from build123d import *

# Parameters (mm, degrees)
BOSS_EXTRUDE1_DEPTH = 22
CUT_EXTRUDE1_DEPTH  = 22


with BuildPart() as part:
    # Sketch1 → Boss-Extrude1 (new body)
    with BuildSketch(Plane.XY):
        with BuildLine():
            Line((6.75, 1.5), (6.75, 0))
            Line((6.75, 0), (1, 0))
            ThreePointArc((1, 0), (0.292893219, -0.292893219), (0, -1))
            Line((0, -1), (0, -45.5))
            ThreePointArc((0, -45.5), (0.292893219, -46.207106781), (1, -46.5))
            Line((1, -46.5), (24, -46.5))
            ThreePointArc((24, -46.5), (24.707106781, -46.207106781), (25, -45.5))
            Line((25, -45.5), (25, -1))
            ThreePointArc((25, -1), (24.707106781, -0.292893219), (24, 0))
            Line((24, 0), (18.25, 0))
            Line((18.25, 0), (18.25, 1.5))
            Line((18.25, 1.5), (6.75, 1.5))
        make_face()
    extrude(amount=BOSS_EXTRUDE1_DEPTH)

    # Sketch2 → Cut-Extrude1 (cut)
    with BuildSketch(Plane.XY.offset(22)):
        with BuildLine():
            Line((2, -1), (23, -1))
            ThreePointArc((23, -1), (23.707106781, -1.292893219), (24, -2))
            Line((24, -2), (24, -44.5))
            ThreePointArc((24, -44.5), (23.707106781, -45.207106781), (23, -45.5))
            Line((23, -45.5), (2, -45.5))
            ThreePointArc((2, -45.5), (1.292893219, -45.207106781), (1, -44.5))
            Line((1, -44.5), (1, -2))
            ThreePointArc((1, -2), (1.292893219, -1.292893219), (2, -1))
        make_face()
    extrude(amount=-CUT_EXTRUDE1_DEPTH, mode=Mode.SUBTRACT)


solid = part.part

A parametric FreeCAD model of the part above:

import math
import FreeCAD as App
import Part
import Sketcher
from FreeCAD import Vector

doc = App.newDocument("Part")
body = doc.addObject("PartDesign::Body", "Body")

sketch1 = body.newObject("Sketcher::SketchObject", "Sketch")
sketch1.AttachmentSupport = (doc.getObject("XY_Plane"), [""])
sketch1.MapMode = "FlatFace"
sketch1.addGeometry([
    Part.LineSegment(Vector(6.8, 1.5, 0), Vector(6.8, 0, 0)),
    Part.LineSegment(Vector(6.8, 0, 0), Vector(1, 0, 0)),
    Part.ArcOfCircle(Part.Circle(Vector(1, -1, 0), Vector(0, 0, 1), 1), math.radians(90), math.radians(180)),
    Part.LineSegment(Vector(0, -1, 0), Vector(0, -45.5, 0)),
    Part.ArcOfCircle(Part.Circle(Vector(1, -45.5, 0), Vector(0, 0, 1), 1), math.radians(-180), math.radians(-90)),
    Part.LineSegment(Vector(1, -46.5, 0), Vector(24, -46.5, 0)),
    Part.ArcOfCircle(Part.Circle(Vector(24, -45.5, 0), Vector(0, 0, 1), 1), math.radians(-90), math.radians(0)),
    Part.LineSegment(Vector(25, -45.5, 0), Vector(25, -1, 0)),
    Part.ArcOfCircle(Part.Circle(Vector(24, -1, 0), Vector(0, 0, 1), 1), math.radians(0), math.radians(90)),
    Part.LineSegment(Vector(24, 0, 0), Vector(18.2, 0, 0)),
    Part.LineSegment(Vector(18.2, 0, 0), Vector(18.2, 1.5, 0)),
    Part.LineSegment(Vector(18.2, 1.5, 0), Vector(6.8, 1.5, 0)),
], False)
sketch1.addConstraint([
    Sketcher.Constraint("Coincident", 0, 2, 1, 1),
    Sketcher.Constraint("Tangent", 1, 2, 2, 1),
    Sketcher.Constraint("Tangent", 2, 2, 3, 1),
    Sketcher.Constraint("Tangent", 3, 2, 4, 1),
    Sketcher.Constraint("Tangent", 4, 2, 5, 1),
    Sketcher.Constraint("Tangent", 5, 2, 6, 1),
    Sketcher.Constraint("Tangent", 6, 2, 7, 1),
    Sketcher.Constraint("Tangent", 7, 2, 8, 1),
    Sketcher.Constraint("Tangent", 8, 2, 9, 1),
    Sketcher.Constraint("Coincident", 9, 2, 10, 1),
    Sketcher.Constraint("Coincident", 10, 2, 11, 1),
    Sketcher.Constraint("Coincident", 11, 2, 0, 1),
    Sketcher.Constraint("Vertical", 0),
    Sketcher.Constraint("Horizontal", 1),
    Sketcher.Constraint("Vertical", 3),
    Sketcher.Constraint("Horizontal", 5),
    Sketcher.Constraint("Vertical", 7),
    Sketcher.Constraint("Horizontal", 9),
    Sketcher.Constraint("Vertical", 10),
    Sketcher.Constraint("Horizontal", 11),
    Sketcher.Constraint("Equal", 2, 4),
    Sketcher.Constraint("Equal", 4, 6),
    Sketcher.Constraint("Equal", 6, 8),
    Sketcher.Constraint("PointOnObject", 0, 2, -1),
    Sketcher.Constraint("PointOnObject", 2, 2, -2),
    Sketcher.Constraint("PointOnObject", 8, 2, -1),
    Sketcher.Constraint("Equal", 1, 9),
    Sketcher.Constraint("Radius", 2, 1.0),
    Sketcher.Constraint("DistanceX", 5, 1, 5, 2, 23.0),
    Sketcher.Constraint("DistanceX", 11, 2, 11, 1, 11.5),
    Sketcher.Constraint("DistanceY", 0, 2, 0, 1, 1.5),
    Sketcher.Constraint("DistanceY", 3, 2, 3, 1, 44.5),
])
pad1 = body.newObject("PartDesign::Pad", "Pad")
pad1.Profile = sketch1
pad1.Length = 22

sketch2 = body.newObject("Sketcher::SketchObject", "Sketch001")
sketch2.AttachmentSupport = (doc.getObject("XY_Plane"), [""])
sketch2.MapMode = "FlatFace"
sketch2.AttachmentOffset = App.Placement(Vector(0, 0, 22), App.Rotation())
sketch2.addGeometry([
    Part.LineSegment(Vector(23, -1, 0), Vector(2, -1, 0)),
    Part.ArcOfCircle(Part.Circle(Vector(2, -2, 0), Vector(0, 0, 1), 1), math.radians(90), math.radians(180)),
    Part.LineSegment(Vector(1, -2, 0), Vector(1, -44.5, 0)),
    Part.ArcOfCircle(Part.Circle(Vector(2, -44.5, 0), Vector(0, 0, 1), 1), math.radians(-180), math.radians(-90)),
    Part.LineSegment(Vector(2, -45.5, 0), Vector(23, -45.5, 0)),
    Part.ArcOfCircle(Part.Circle(Vector(23, -44.5, 0), Vector(0, 0, 1), 1), math.radians(-90), math.radians(0)),
    Part.LineSegment(Vector(24, -44.5, 0), Vector(24, -2, 0)),
    Part.ArcOfCircle(Part.Circle(Vector(23, -2, 0), Vector(0, 0, 1), 1), math.radians(0), math.radians(90)),
], False)
sketch2.addConstraint([
    Sketcher.Constraint("Tangent", 0, 2, 1, 1),
    Sketcher.Constraint("Tangent", 1, 2, 2, 1),
    Sketcher.Constraint("Tangent", 2, 2, 3, 1),
    Sketcher.Constraint("Tangent", 3, 2, 4, 1),
    Sketcher.Constraint("Tangent", 4, 2, 5, 1),
    Sketcher.Constraint("Tangent", 5, 2, 6, 1),
    Sketcher.Constraint("Tangent", 6, 2, 7, 1),
    Sketcher.Constraint("Tangent", 7, 2, 0, 1),
    Sketcher.Constraint("Horizontal", 0),
    Sketcher.Constraint("Vertical", 2),
    Sketcher.Constraint("Horizontal", 4),
    Sketcher.Constraint("Vertical", 6),
    Sketcher.Constraint("Equal", 1, 3),
    Sketcher.Constraint("Equal", 3, 5),
    Sketcher.Constraint("Equal", 5, 7),
    Sketcher.Constraint("Radius", 1, 1.0),
    Sketcher.Constraint("DistanceX", 0, 2, 0, 1, 21.0),
    Sketcher.Constraint("DistanceY", 2, 2, 2, 1, 42.5),
    Sketcher.Constraint("DistanceX", -1, 1, 1, 3, 2.0),
    Sketcher.Constraint("DistanceY", 1, 3, -1, 1, 2.0),
])
pocket1 = body.newObject("PartDesign::Pocket", "Pocket")
pocket1.Profile = sketch2
pocket1.Length = 22

doc.recompute()
